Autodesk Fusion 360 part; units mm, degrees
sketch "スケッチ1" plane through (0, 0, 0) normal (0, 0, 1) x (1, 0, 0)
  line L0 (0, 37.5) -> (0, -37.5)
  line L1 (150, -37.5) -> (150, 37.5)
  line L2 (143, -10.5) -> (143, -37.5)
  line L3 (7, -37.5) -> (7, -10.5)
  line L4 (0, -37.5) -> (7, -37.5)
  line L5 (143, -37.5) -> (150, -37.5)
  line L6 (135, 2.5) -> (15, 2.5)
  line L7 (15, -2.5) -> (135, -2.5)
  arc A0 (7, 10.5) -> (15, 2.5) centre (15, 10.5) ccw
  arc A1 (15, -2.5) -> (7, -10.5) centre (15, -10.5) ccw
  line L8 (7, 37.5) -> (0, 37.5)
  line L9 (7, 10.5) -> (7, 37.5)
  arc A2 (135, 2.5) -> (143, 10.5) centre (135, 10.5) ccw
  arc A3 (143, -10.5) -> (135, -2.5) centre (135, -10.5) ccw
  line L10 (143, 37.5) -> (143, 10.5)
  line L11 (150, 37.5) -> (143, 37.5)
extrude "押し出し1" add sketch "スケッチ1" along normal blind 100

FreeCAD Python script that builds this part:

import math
import FreeCAD as App
import Part
import Sketcher

V = App.Vector
Q = App.Units.Quantity

doc = App.newDocument("Part")
body = doc.addObject("PartDesign::Body", "Body")

# Sketch on XY plane
sketch1 = body.newObject("Sketcher::SketchObject", "Sketch")
sketch1.AttachmentSupport = (doc.getObject("XY_Plane"), [""])
sketch1.MapMode = "FlatFace"
sketch1.addGeometry([
    Part.LineSegment(V(7, 37.5, 0), V(0, 37.5, 0)),  # 0
    Part.LineSegment(V(0, 37.5, 0), V(0, -37.5, 0)),  # 1
    Part.LineSegment(V(0, -37.5, 0), V(7, -37.5, 0)),  # 2
    Part.LineSegment(V(7, -37.5, 0), V(7, -10.5, 0)),  # 3
    Part.ArcOfCircle(Part.Circle(V(15, -10.5, 0), V(0, 0, 1), 8), math.radians(90), math.radians(180)),  # 4
    Part.LineSegment(V(15, -2.5, 0), V(135, -2.5, 0)),  # 5
    Part.ArcOfCircle(Part.Circle(V(135, -10.5, 0), V(0, 0, 1), 8), math.radians(0), math.radians(90)),  # 6
    Part.LineSegment(V(143, -10.5, 0), V(143, -37.5, 0)),  # 7
    Part.LineSegment(V(143, -37.5, 0), V(150, -37.5, 0)),  # 8
    Part.LineSegment(V(150, -37.5, 0), V(150, 37.5, 0)),  # 9
    Part.LineSegment(V(150, 37.5, 0), V(143, 37.5, 0)),  # 10
    Part.LineSegment(V(143, 37.5, 0), V(143, 10.5, 0)),  # 11
    Part.ArcOfCircle(Part.Circle(V(135, 10.5, 0), V(0, 0, 1), 8), math.radians(-90), math.radians(0)),  # 12
    Part.LineSegment(V(135, 2.5, 0), V(15, 2.5, 0)),  # 13
    Part.ArcOfCircle(Part.Circle(V(15, 10.5, 0), V(0, 0, 1), 8), math.radians(180), math.radians(270)),  # 14
    Part.LineSegment(V(7, 10.5, 0), V(7, 37.5, 0)),  # 15
], False)
sketch1.addConstraint([
    Sketcher.Constraint("Coincident", 0, 2, 1, 1),
    Sketcher.Constraint("Coincident", 1, 2, 2, 1),
    Sketcher.Constraint("Coincident", 2, 2, 3, 1),
    Sketcher.Constraint("Tangent", 3, 2, 4, 2),
    Sketcher.Constraint("Tangent", 4, 1, 5, 1),
    Sketcher.Constraint("Tangent", 5, 2, 6, 2),
    Sketcher.Constraint("Tangent", 6, 1, 7, 1),
    Sketcher.Constraint("Coincident", 7, 2, 8, 1),
    Sketcher.Constraint("Coincident", 8, 2, 9, 1),
    Sketcher.Constraint("Coincident", 9, 2, 10, 1),
    Sketcher.Constraint("Coincident", 10, 2, 11, 1),
    Sketcher.Constraint("Tangent", 11, 2, 12, 2),
    Sketcher.Constraint("Tangent", 12, 1, 13, 1),
    Sketcher.Constraint("Tangent", 13, 2, 14, 2),
    Sketcher.Constraint("Tangent", 14, 1, 15, 1),
    Sketcher.Constraint("Coincident", 15, 2, 0, 1),
    Sketcher.Constraint("Horizontal", 0),
    Sketcher.Constraint("Vertical", 1),
    Sketcher.Constraint("Horizontal", 2),
    Sketcher.Constraint("Vertical", 3),
    Sketcher.Constraint("Horizontal", 5),
    Sketcher.Constraint("Vertical", 7),
    Sketcher.Constraint("Horizontal", 8),
    Sketcher.Constraint("Vertical", 9),
    Sketcher.Constraint("Horizontal", 10),
    Sketcher.Constraint("Vertical", 11),
    Sketcher.Constraint("Horizontal", 13),
    Sketcher.Constraint("Vertical", 15),
    Sketcher.Constraint("Equal", 4, 6),
    Sketcher.Constraint("Equal", 6, 12),
    Sketcher.Constraint("Equal", 12, 14),
    Sketcher.Constraint("Symmetric", 0, 2, 1, 2, -1, 1),
    Sketcher.Constraint("Symmetric", 6, 3, 12, 3, -1),
    Sketcher.Constraint("Horizontal", 2, 2, 7, 2),
    Sketcher.Constraint("Horizontal", 0, 2, 9, 2),
    Sketcher.Constraint("Vertical", 4, 3, 14, 3),
    Sketcher.Constraint("Equal", 2, 8),
    Sketcher.Constraint("Radius", 4, Q("8 mm")),
    Sketcher.Constraint("DistanceX", 0, 2, 0, 1, Q("7 mm")),
    Sketcher.Constraint("DistanceX", 5, 1, 5, 2, Q("120 mm")),
    Sketcher.Constraint("DistanceY", 1, 2, 1, 1, Q("75 mm")),
    Sketcher.Constraint("DistanceY", 3, 1, 3, 2, Q("27 mm")),
])
pad1 = body.newObject("PartDesign::Pad", "Pad")
pad1.Profile = sketch1
pad1.Length = 100

doc.recompute()
